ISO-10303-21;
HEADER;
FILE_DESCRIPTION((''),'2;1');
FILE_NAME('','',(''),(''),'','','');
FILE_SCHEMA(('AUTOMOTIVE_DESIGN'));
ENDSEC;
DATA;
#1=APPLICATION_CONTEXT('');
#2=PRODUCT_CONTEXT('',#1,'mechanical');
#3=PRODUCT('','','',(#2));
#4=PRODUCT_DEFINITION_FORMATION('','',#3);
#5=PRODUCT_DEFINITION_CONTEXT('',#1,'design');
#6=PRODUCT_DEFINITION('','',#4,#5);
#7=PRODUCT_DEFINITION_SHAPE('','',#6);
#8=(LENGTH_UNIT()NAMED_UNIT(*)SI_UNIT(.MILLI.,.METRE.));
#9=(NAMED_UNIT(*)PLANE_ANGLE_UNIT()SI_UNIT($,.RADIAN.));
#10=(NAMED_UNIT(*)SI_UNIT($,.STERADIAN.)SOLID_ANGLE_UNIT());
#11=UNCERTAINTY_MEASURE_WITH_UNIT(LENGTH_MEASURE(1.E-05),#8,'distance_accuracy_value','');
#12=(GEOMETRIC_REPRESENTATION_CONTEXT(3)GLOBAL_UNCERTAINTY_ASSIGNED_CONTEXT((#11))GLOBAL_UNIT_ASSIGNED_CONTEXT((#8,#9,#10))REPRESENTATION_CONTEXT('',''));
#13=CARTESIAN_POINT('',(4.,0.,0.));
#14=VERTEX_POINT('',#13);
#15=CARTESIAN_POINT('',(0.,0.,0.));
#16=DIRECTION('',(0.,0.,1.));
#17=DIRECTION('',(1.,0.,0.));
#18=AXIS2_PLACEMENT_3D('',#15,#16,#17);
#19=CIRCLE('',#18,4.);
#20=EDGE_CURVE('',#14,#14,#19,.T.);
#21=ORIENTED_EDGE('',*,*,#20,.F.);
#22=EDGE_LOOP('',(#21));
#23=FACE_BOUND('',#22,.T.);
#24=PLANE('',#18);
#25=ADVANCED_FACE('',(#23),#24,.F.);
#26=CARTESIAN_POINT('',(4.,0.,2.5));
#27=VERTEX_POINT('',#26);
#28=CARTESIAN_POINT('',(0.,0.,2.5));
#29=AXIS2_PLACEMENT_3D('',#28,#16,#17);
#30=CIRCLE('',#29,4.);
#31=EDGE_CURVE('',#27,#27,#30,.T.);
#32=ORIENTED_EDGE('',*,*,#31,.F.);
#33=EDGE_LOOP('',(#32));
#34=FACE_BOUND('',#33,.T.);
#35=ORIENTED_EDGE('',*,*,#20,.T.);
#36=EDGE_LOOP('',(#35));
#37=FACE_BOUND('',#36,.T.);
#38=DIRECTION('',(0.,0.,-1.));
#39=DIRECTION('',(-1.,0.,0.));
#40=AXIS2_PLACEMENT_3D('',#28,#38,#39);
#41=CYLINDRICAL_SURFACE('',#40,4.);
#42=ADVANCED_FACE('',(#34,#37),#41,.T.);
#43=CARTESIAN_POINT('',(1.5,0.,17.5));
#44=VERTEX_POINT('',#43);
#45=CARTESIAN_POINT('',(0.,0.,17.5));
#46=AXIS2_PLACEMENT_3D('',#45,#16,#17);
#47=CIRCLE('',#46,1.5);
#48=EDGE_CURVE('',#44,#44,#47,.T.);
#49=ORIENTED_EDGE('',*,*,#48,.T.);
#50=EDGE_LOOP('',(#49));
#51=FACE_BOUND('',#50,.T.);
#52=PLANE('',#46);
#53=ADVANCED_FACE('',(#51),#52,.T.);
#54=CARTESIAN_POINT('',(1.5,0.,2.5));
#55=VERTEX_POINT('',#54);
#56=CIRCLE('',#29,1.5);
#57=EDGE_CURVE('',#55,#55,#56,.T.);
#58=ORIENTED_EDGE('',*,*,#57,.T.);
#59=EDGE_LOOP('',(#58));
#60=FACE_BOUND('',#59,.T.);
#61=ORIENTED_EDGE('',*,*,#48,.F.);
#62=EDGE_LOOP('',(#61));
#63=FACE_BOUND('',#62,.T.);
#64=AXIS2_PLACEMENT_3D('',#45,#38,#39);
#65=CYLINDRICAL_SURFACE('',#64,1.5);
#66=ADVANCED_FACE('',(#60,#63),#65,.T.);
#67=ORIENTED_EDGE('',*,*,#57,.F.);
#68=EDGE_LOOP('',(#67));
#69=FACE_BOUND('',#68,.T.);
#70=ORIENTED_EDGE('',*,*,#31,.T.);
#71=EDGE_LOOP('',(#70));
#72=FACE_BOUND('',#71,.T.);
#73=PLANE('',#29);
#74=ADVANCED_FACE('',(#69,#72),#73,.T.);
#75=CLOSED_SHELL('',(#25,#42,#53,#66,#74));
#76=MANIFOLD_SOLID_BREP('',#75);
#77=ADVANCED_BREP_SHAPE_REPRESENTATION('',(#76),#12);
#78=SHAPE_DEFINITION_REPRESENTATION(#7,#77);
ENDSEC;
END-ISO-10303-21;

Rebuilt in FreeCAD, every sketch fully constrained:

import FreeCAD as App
import Part
import Sketcher
from FreeCAD import Vector
Q = App.Units.Quantity

doc = App.newDocument("Part")
body = doc.addObject("PartDesign::Body", "Body")

# Sketch on XY plane
sketch1 = body.newObject("Sketcher::SketchObject", "Sketch")
sketch1.AttachmentSupport = (doc.getObject("XY_Plane"), [""])
sketch1.MapMode = "FlatFace"
sketch1.addGeometry(Part.Circle(Vector(0, 0, 0), Vector(0, 0, 1), 4), False)
sketch1.addConstraint([
    Sketcher.Constraint("Coincident", 0, 3, -1, 1),
    Sketcher.Constraint("Diameter", 0, Q("8 mm")),
])
pad1 = body.newObject("PartDesign::Pad", "Pad")
pad1.Profile = sketch1
pad1.Length = 2.5

# Sketch on XY plane
sketch2 = body.newObject("Sketcher::SketchObject", "Sketch001")
sketch2.AttachmentSupport = (doc.getObject("XY_Plane"), [""])
sketch2.MapMode = "FlatFace"
sketch2.AttachmentOffset = App.Placement(Vector(0, 0, 2.5), App.Rotation())
sketch2.addGeometry(Part.Circle(Vector(0, 0, 0), Vector(0, 0, 1), 1.5), False)
sketch2.addConstraint([
    Sketcher.Constraint("Coincident", 0, 3, -1, 1),
    Sketcher.Constraint("Diameter", 0, Q("3 mm")),
])
pad2 = body.newObject("PartDesign::Pad", "Pad001")
pad2.Profile = sketch2
pad2.Length = 15

doc.recompute()
